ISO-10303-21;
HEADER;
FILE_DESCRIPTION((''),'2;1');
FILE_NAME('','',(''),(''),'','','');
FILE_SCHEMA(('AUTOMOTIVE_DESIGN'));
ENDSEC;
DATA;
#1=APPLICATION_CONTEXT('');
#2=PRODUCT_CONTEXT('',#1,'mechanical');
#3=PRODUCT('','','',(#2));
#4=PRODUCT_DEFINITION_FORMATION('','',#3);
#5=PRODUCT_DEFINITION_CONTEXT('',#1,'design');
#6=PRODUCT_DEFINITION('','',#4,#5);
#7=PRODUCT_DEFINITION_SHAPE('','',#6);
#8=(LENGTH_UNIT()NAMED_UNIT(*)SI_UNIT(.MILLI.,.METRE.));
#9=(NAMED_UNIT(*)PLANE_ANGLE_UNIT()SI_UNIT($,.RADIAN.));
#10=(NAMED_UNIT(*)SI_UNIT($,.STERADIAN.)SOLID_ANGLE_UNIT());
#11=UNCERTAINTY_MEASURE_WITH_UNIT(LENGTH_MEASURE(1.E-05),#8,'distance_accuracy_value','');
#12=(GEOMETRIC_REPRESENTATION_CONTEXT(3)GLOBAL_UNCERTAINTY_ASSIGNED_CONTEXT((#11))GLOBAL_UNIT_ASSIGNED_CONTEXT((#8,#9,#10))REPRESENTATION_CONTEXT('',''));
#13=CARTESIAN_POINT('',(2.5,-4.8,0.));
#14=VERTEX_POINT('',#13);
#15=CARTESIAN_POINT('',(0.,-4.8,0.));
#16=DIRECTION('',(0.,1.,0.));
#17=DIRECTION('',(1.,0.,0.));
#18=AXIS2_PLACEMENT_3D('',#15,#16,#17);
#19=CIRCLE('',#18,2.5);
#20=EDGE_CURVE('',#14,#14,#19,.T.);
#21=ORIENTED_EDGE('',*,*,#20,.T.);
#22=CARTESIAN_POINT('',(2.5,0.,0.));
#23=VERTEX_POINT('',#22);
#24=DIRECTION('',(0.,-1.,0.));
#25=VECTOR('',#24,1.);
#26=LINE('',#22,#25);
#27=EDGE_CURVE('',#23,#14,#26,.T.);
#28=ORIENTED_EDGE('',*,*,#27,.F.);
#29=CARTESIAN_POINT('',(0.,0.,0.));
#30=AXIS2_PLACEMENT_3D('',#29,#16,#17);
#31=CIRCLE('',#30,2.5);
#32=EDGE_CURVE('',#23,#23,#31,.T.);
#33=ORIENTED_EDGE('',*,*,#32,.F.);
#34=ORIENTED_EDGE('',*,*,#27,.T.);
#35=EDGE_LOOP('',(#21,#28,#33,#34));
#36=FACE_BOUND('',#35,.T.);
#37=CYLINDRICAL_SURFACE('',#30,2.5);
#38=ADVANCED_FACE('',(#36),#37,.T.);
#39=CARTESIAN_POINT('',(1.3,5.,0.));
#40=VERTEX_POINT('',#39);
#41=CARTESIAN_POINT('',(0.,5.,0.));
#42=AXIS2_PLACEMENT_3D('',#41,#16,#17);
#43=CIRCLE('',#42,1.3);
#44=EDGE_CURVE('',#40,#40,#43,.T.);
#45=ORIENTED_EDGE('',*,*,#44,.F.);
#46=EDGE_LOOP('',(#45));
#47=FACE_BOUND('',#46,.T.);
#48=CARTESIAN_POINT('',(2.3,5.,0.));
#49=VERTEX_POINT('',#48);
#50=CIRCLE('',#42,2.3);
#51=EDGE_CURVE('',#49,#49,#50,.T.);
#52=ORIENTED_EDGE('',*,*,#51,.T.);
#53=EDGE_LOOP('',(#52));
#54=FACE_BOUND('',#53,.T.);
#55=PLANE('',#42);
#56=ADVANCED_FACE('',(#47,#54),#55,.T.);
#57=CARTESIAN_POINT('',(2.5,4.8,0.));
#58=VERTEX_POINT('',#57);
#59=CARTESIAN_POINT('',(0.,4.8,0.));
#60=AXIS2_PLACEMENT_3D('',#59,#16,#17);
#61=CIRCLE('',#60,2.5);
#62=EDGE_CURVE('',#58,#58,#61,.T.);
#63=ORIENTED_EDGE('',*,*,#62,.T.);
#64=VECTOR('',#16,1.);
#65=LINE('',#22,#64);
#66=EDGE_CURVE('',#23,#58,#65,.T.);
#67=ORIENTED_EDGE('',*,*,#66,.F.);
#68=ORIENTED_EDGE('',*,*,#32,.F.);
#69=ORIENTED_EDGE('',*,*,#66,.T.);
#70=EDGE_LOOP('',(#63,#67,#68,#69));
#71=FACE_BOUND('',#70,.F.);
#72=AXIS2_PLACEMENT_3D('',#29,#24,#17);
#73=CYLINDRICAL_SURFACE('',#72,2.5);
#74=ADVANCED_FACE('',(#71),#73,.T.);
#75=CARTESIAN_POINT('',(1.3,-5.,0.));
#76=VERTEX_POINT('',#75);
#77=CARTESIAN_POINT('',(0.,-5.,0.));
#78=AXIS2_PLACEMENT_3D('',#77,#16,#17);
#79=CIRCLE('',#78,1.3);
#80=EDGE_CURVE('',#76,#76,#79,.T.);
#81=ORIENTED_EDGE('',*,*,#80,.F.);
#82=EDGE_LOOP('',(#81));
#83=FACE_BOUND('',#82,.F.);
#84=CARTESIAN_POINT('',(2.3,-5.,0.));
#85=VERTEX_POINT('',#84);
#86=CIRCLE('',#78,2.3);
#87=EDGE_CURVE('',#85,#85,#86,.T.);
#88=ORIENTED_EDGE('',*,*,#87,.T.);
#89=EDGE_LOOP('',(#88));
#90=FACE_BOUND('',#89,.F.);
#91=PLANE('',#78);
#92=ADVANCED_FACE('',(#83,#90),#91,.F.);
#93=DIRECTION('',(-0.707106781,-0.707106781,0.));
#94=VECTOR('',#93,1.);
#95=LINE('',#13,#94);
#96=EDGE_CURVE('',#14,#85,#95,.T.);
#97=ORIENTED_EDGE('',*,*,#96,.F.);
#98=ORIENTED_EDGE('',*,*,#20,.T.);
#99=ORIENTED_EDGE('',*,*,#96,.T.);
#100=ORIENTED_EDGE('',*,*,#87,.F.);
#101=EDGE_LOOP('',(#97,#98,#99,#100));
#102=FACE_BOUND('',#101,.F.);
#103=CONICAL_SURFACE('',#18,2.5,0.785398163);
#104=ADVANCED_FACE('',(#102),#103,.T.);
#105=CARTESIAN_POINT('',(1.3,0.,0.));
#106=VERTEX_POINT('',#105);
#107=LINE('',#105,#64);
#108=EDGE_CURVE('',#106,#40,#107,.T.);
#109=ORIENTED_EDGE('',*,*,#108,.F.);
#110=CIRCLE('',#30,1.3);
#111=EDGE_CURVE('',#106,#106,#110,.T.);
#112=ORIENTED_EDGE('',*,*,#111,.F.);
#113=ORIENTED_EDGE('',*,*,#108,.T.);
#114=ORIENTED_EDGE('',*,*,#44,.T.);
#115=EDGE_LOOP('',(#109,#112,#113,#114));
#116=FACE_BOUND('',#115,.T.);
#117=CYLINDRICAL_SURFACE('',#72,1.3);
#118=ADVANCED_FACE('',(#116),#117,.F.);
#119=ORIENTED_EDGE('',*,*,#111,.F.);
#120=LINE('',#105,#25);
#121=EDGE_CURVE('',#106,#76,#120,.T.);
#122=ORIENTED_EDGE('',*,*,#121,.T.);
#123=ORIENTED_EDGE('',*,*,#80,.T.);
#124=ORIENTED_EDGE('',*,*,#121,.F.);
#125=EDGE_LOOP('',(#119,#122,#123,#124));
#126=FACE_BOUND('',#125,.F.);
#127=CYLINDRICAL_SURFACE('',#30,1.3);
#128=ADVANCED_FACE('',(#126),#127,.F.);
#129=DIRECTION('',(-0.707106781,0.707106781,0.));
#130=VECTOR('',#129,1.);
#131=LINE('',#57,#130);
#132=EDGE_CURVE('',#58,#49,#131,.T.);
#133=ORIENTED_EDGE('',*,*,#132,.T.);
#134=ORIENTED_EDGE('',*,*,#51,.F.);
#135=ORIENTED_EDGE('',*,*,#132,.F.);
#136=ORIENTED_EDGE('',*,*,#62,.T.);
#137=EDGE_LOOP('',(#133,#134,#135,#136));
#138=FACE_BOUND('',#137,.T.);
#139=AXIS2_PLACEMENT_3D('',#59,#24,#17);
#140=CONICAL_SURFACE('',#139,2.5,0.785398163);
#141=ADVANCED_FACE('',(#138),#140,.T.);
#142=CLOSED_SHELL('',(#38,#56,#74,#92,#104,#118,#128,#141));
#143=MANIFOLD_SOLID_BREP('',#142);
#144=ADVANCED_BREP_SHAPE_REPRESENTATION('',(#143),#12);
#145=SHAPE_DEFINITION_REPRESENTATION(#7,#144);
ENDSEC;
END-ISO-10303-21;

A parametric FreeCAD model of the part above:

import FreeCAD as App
import Part
import Sketcher
from FreeCAD import Vector
Q = App.Units.Quantity


def edges_at(feature, points):
    """Names of the edges that pass closest to the given points."""
    edges = feature.Shape.Edges
    near = lambda p: min(range(len(edges)), key=lambda i: edges[i].distToShape(Part.Vertex(*p))[0])
    return sorted({f"Edge{near(p) + 1}" for p in points})

doc = App.newDocument("Part")
body = doc.addObject("PartDesign::Body", "Body")

# Sketch on XZ plane
sketch1 = body.newObject("Sketcher::SketchObject", "Sketch")
sketch1.AttachmentSupport = (doc.getObject("XZ_Plane"), [""])
sketch1.MapMode = "FlatFace"
sketch1.addGeometry([
    Part.Circle(Vector(0, 0, 0), Vector(0, 0, 1), 2.5),
    Part.Circle(Vector(0, 0, 0), Vector(0, 0, 1), 1.3),
], False)
sketch1.addConstraint([
    Sketcher.Constraint("Coincident", 0, 3, -1, 1),
    Sketcher.Constraint("Coincident", 1, 3, -1, 1),
    Sketcher.Constraint("Diameter", 0, Q("5 mm")),
    Sketcher.Constraint("Diameter", 1, Q("2.6 mm")),
])
pad1 = body.newObject("PartDesign::Pad", "Pad")
pad1.Profile = sketch1
pad1.Length = 10
pad1.Midplane = True
doc.recompute()

chamfer = body.newObject("PartDesign::Chamfer", "Chamfer")
chamfer.Base = (pad1, edges_at(pad1, [(-2.5, 5, 0), (-2.5, -5, 0)]))
chamfer.Size = 0.2

doc.recompute()
